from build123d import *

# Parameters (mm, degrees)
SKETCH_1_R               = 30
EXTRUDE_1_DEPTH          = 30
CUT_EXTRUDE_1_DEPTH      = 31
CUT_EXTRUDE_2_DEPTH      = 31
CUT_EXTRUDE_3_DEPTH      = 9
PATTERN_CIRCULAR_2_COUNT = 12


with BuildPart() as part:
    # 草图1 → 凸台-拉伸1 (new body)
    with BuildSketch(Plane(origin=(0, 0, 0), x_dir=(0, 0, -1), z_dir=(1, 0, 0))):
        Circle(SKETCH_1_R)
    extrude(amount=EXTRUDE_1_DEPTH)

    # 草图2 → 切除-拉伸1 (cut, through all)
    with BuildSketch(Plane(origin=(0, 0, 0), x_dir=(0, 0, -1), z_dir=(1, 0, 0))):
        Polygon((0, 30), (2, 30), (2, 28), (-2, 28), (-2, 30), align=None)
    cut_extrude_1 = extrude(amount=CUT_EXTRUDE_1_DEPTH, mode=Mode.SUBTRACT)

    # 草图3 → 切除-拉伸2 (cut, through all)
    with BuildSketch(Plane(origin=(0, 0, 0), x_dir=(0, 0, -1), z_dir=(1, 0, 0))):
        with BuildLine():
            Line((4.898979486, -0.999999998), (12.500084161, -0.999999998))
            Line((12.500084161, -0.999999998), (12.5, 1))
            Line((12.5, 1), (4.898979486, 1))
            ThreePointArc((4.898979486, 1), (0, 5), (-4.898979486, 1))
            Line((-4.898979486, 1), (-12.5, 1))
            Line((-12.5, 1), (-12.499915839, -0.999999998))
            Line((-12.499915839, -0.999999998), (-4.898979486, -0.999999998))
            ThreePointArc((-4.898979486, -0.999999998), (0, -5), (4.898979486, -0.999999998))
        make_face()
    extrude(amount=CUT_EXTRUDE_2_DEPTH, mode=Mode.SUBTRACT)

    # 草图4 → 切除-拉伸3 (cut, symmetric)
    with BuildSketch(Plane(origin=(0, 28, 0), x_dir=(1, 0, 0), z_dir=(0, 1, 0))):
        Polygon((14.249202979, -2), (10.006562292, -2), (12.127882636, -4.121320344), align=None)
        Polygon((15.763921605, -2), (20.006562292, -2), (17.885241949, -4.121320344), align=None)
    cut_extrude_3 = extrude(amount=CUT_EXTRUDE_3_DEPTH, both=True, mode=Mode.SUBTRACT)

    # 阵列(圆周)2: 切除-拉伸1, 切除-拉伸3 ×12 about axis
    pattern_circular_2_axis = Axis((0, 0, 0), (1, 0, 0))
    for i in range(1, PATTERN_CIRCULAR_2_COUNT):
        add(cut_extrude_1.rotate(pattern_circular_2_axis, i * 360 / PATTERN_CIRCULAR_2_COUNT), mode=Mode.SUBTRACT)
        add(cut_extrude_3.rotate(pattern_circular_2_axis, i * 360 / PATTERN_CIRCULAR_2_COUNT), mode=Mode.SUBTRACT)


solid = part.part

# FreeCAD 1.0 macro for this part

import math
import FreeCAD as App
import Part
import Sketcher
from FreeCAD import Vector

doc = App.newDocument("Part")
body = doc.addObject("PartDesign::Body", "Body")

sketch1 = doc.addObject("Sketcher::SketchObject", "Sketch")
body.addObject(sketch1)
sketch1.AttachmentSupport = (doc.YZ_Plane, [""])
sketch1.MapMode = "FlatFace"
sketch1.addGeometry(Part.Circle(Vector(0, 0, 0), Vector(0, 0, 1), 30), False)
sketch1.addConstraint([
    Sketcher.Constraint("Coincident", 0, 3, -1, 1),
    Sketcher.Constraint("Diameter", 0, 60.0),
])
pad1 = doc.addObject("PartDesign::Pad", "Pad")
body.addObject(pad1)
pad1.Profile = sketch1
pad1.Length = 30

sketch2 = doc.addObject("Sketcher::SketchObject", "Sketch001")
body.addObject(sketch2)
sketch2.AttachmentSupport = (doc.YZ_Plane, [""])
sketch2.MapMode = "FlatFace"
sketch2.addGeometry([
    Part.LineSegment(Vector(30, -2, 0), Vector(30, 2, 0)),
    Part.LineSegment(Vector(30, 2, 0), Vector(28, 2, 0)),
    Part.LineSegment(Vector(28, 2, 0), Vector(28, -2, 0)),
    Part.LineSegment(Vector(28, -2, 0), Vector(30, -2, 0)),
], False)
sketch2.addConstraint([
    Sketcher.Constraint("Coincident", 0, 2, 1, 1),
    Sketcher.Constraint("Coincident", 1, 2, 2, 1),
    Sketcher.Constraint("Coincident", 2, 2, 3, 1),
    Sketcher.Constraint("Coincident", 3, 2, 0, 1),
    Sketcher.Constraint("Vertical", 0),
    Sketcher.Constraint("Horizontal", 1),
    Sketcher.Constraint("Vertical", 2),
    Sketcher.Constraint("Horizontal", 3),
    Sketcher.Constraint("DistanceX", 1, 2, 1, 1, 2.0),
    Sketcher.Constraint("DistanceY", 0, 1, 0, 2, 4.0),
    Sketcher.Constraint("DistanceX", -1, 1, 0, 2, 30.0),
    Sketcher.Constraint("DistanceY", -1, 1, 0, 2, 2.0),
])
pocket1 = doc.addObject("PartDesign::Pocket", "Pocket")
body.addObject(pocket1)
pocket1.Profile = sketch2
pocket1.Type = "ThroughAll"
pocket1.Reversed = True

sketch3 = doc.addObject("Sketcher::SketchObject", "Sketch002")
body.addObject(sketch3)
sketch3.AttachmentSupport = (doc.YZ_Plane, [""])
sketch3.MapMode = "FlatFace"
sketch3.addGeometry([
    Part.LineSegment(Vector(-1, -4.9, 0), Vector(-1, -12.5, 0)),
    Part.LineSegment(Vector(-1, -12.5, 0), Vector(1, -12.5, 0)),
    Part.LineSegment(Vector(1, -12.5, 0), Vector(1, -4.9, 0)),
    Part.ArcOfCircle(Part.Circle(Vector(0, 0, 0), Vector(0, 0, 1), 5), math.radians(-78), math.radians(78)),
    Part.LineSegment(Vector(1, 4.9, 0), Vector(1, 12.5, 0)),
    Part.LineSegment(Vector(1, 12.5, 0), Vector(-1, 12.5, 0)),
    Part.LineSegment(Vector(-1, 12.5, 0), Vector(-1, 4.9, 0)),
    Part.ArcOfCircle(Part.Circle(Vector(0, 0, 0), Vector(0, 0, 1), 5), math.radians(102), math.radians(258)),
], False)
sketch3.addConstraint([
    Sketcher.Constraint("Coincident", 0, 2, 1, 1),
    Sketcher.Constraint("Coincident", 1, 2, 2, 1),
    Sketcher.Constraint("Coincident", 2, 2, 3, 1),
    Sketcher.Constraint("Coincident", 3, 2, 4, 1),
    Sketcher.Constraint("Coincident", 4, 2, 5, 1),
    Sketcher.Constraint("Coincident", 5, 2, 6, 1),
    Sketcher.Constraint("Coincident", 6, 2, 7, 1),
    Sketcher.Constraint("Coincident", 7, 2, 0, 1),
    Sketcher.Constraint("Vertical", 0),
    Sketcher.Constraint("Vertical", 2),
    Sketcher.Constraint("Vertical", 4),
    Sketcher.Constraint("Vertical", 6),
    Sketcher.Constraint("Coincident", 3, 3, -1, 1),
    Sketcher.Constraint("Coincident", 7, 3, -1, 1),
    Sketcher.Constraint("Equal", 3, 7),
    Sketcher.Constraint("Symmetric", 1, 2, 4, 2, -1),
    Sketcher.Constraint("Parallel", 1, 5),
    Sketcher.Constraint("Horizontal", 3, 2, 6, 2),
    Sketcher.Constraint("Horizontal", 2, 2, 7, 2),
    Sketcher.Constraint("Radius", 3, 5.0),
    Sketcher.Constraint("Distance", 1, 2.0),
    Sketcher.Constraint("DistanceY", 1, 2, 4, 2, 25.0),
    Sketcher.Constraint("DistanceY", 0, 2, 0, 1, 7.601105),
])
pocket2 = doc.addObject("PartDesign::Pocket", "Pocket001")
body.addObject(pocket2)
pocket2.Profile = sketch3
pocket2.Type = "ThroughAll"
pocket2.Reversed = True

sketch4 = doc.addObject("Sketcher::SketchObject", "Sketch003")
body.addObject(sketch4)
sketch4.AttachmentSupport = (doc.XZ_Plane, [""])
sketch4.MapMode = "FlatFace"
sketch4.AttachmentOffset = App.Placement(Vector(0, 0, -28), App.Rotation())
sketch4.addGeometry([
    Part.LineSegment(Vector(14.2, 2, 0), Vector(10, 2, 0)),
    Part.LineSegment(Vector(10, 2, 0), Vector(12.1, 4.1, 0)),
    Part.LineSegment(Vector(12.1, 4.1, 0), Vector(14.2, 2, 0)),
    Part.LineSegment(Vector(20, 2, 0), Vector(15.8, 2, 0)),
    Part.LineSegment(Vector(15.8, 2, 0), Vector(17.9, 4.1, 0)),
    Part.LineSegment(Vector(17.9, 4.1, 0), Vector(20, 2, 0)),
], False)
sketch4.addConstraint([
    Sketcher.Constraint("Coincident", 0, 2, 1, 1),
    Sketcher.Constraint("Coincident", 1, 2, 2, 1),
    Sketcher.Constraint("Coincident", 2, 2, 0, 1),
    Sketcher.Constraint("Coincident", 3, 2, 4, 1),
    Sketcher.Constraint("Coincident", 4, 2, 5, 1),
    Sketcher.Constraint("Coincident", 5, 2, 3, 1),
    Sketcher.Constraint("Horizontal", 0),
    Sketcher.Constraint("Horizontal", 3),
    Sketcher.Constraint("Perpendicular", 1, 2),
    Sketcher.Constraint("Perpendicular", 2, 4),
    Sketcher.Constraint("Perpendicular", 4, 5),
    Sketcher.Constraint("Horizontal", 2, 2, 3, 2),
    Sketcher.Constraint("Horizontal", 1, 2, 4, 2),
    Sketcher.Constraint("Equal", 1, 2),
    Sketcher.Constraint("Distance", 1, 3.0),
    Sketcher.Constraint("DistanceY", -1, 1, 0, 2, 2.0),
    Sketcher.Constraint("DistanceX", 0, 2, 5, 2, 10.0),
    Sketcher.Constraint("DistanceX", -1, 1, 3, 2, 15.763922),
])
pocket3 = doc.addObject("PartDesign::Pocket", "Pocket002")
body.addObject(pocket3)
pocket3.Profile = sketch4
pocket3.Length = 18
pocket3.Midplane = True
doc.recompute()

polarpattern = doc.addObject("PartDesign::PolarPattern", "PolarPattern")
body.addObject(polarpattern)
polarpattern.Originals = [pocket1, pocket3]
polarpattern.Axis = (doc.X_Axis, [""])
polarpattern.Angle = 360
polarpattern.Occurrences = 12
body.Tip = polarpattern

doc.recompute()
